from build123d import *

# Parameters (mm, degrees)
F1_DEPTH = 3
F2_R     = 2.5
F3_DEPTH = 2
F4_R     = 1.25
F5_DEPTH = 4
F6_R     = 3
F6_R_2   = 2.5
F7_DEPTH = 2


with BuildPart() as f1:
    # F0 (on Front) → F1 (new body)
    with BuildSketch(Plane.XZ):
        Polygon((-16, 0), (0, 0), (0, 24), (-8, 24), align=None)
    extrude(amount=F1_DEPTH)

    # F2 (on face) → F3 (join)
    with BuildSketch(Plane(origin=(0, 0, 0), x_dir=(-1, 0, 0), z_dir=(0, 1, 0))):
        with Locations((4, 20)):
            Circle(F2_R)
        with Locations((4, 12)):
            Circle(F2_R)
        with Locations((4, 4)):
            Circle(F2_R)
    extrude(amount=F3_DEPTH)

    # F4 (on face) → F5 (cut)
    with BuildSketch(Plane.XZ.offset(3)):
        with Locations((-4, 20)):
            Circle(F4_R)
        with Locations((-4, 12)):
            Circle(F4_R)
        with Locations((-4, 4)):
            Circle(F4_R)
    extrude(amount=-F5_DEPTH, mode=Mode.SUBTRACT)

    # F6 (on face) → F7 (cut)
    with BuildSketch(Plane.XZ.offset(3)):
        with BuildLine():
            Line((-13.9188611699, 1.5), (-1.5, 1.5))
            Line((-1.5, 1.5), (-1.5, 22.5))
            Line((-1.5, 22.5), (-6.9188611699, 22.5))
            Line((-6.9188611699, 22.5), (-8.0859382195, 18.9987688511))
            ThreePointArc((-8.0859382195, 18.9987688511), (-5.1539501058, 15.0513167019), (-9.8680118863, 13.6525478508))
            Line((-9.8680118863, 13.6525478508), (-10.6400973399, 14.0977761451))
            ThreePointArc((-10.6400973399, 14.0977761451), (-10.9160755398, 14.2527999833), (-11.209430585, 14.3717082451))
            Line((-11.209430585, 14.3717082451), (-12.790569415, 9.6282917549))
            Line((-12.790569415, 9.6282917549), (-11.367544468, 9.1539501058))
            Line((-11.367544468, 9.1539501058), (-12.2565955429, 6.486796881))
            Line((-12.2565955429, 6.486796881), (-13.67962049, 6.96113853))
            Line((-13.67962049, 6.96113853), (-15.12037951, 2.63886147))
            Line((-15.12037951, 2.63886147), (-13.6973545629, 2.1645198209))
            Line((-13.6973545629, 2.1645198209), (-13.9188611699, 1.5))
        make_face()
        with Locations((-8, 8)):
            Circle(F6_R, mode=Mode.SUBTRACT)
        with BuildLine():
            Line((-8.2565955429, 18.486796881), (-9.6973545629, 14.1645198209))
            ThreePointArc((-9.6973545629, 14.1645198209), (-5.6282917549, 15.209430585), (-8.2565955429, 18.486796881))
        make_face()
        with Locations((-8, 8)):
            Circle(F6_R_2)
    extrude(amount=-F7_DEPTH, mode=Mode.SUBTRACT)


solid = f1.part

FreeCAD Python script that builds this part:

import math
import FreeCAD as App
import Part
import Sketcher
from FreeCAD import Vector


def add_polygon(sketch, points):
    """Adds a closed chain of lines whose ends are joined by coincident constraints."""
    first, n = sketch.GeometryCount, len(points)
    for a, b in zip(points, points[1:] + points[:1]):
        sketch.addGeometry(Part.LineSegment(App.Vector(*a, 0), App.Vector(*b, 0)), False)
    for i in range(n):
        sketch.addConstraint(Sketcher.Constraint("Coincident", first + i, 2, first + (i + 1) % n, 1))

doc = App.newDocument("Part")
body = doc.addObject("PartDesign::Body", "Body")

# Sketch on XZ plane
sketch1 = body.newObject("Sketcher::SketchObject", "Sketch")
sketch1.AttachmentSupport = (doc.getObject("XZ_Plane"), [""])
sketch1.MapMode = "FlatFace"
add_polygon(sketch1, [(-16, 0), (0, 0), (0, 24), (-8, 24)])  # lines 0-3
sketch1.addConstraint(Sketcher.Constraint("Horizontal", 0))
sketch1.addConstraint(Sketcher.Constraint("Vertical", 1))
sketch1.addConstraint(Sketcher.Constraint("Horizontal", 2))
sketch1.addConstraint(Sketcher.Constraint("Coincident", 0, 2, -1, 1))
sketch1.addConstraint(Sketcher.Constraint("DistanceX", 0, 1, 0, 2, 16.0))
sketch1.addConstraint(Sketcher.Constraint("DistanceX", 2, 2, 2, 1, 8.0))
sketch1.addConstraint(Sketcher.Constraint("DistanceY", 1, 1, 1, 2, 24.0))
pad1 = body.newObject("PartDesign::Pad", "Pad")
pad1.Profile = sketch1
pad1.Length = 3

# Sketch on XZ plane
sketch2 = body.newObject("Sketcher::SketchObject", "Sketch001")
sketch2.AttachmentSupport = (doc.getObject("XZ_Plane"), [""])
sketch2.MapMode = "FlatFace"
sketch2.addGeometry(Part.Circle(Vector(-4, 20, 0), Vector(0, 0, 1), 2.5), False)
sketch2.addGeometry(Part.Circle(Vector(-4, 12, 0), Vector(0, 0, 1), 2.5), False)
sketch2.addGeometry(Part.Circle(Vector(-4, 4, 0), Vector(0, 0, 1), 2.5), False)
sketch2.addConstraint(Sketcher.Constraint("Equal", 0, 1))
sketch2.addConstraint(Sketcher.Constraint("Equal", 1, 2))
sketch2.addConstraint(Sketcher.Constraint("Vertical", 0, 3, 1, 3))
sketch2.addConstraint(Sketcher.Constraint("Vertical", 1, 3, 2, 3))
sketch2.addConstraint(Sketcher.Constraint("Diameter", 0, 5.0))
sketch2.addConstraint(Sketcher.Constraint("DistanceX", 0, 3, -1, 1, 4.0))
sketch2.addConstraint(Sketcher.Constraint("DistanceY", -1, 1, 0, 3, 20.0))
sketch2.addConstraint(Sketcher.Constraint("DistanceY", -1, 1, 1, 3, 12.0))
sketch2.addConstraint(Sketcher.Constraint("DistanceY", -1, 1, 2, 3, 4.0))
pad2 = body.newObject("PartDesign::Pad", "Pad001")
pad2.Profile = sketch2
pad2.Length = 2
pad2.Reversed = True

# Sketch on XZ plane
sketch3 = body.newObject("Sketcher::SketchObject", "Sketch002")
sketch3.AttachmentSupport = (doc.getObject("XZ_Plane"), [""])
sketch3.MapMode = "FlatFace"
sketch3.AttachmentOffset = App.Placement(Vector(0, 0, 3), App.Rotation())
sketch3.addGeometry(Part.Circle(Vector(-4, 20, 0), Vector(0, 0, 1), 1.2), False)
sketch3.addGeometry(Part.Circle(Vector(-4, 12, 0), Vector(0, 0, 1), 1.2), False)
sketch3.addGeometry(Part.Circle(Vector(-4, 4, 0), Vector(0, 0, 1), 1.2), False)
sketch3.addConstraint(Sketcher.Constraint("Equal", 0, 1))
sketch3.addConstraint(Sketcher.Constraint("Equal", 1, 2))
sketch3.addConstraint(Sketcher.Constraint("Vertical", 0, 3, 1, 3))
sketch3.addConstraint(Sketcher.Constraint("Vertical", 1, 3, 2, 3))
sketch3.addConstraint(Sketcher.Constraint("Diameter", 0, 2.5))
sketch3.addConstraint(Sketcher.Constraint("DistanceX", 0, 3, -1, 1, 4.0))
sketch3.addConstraint(Sketcher.Constraint("DistanceY", -1, 1, 0, 3, 20.0))
sketch3.addConstraint(Sketcher.Constraint("DistanceY", -1, 1, 1, 3, 12.0))
sketch3.addConstraint(Sketcher.Constraint("DistanceY", -1, 1, 2, 3, 4.0))
pocket1 = body.newObject("PartDesign::Pocket", "Pocket")
pocket1.Profile = sketch3
pocket1.Length = 4

# Sketch on XZ plane
sketch4 = body.newObject("Sketcher::SketchObject", "Sketch003")
sketch4.AttachmentSupport = (doc.getObject("XZ_Plane"), [""])
sketch4.MapMode = "FlatFace"
sketch4.AttachmentOffset = App.Placement(Vector(0, 0, 3), App.Rotation())
sketch4.addGeometry(Part.LineSegment(Vector(-13.9, 1.5, 0), Vector(-1.5, 1.5, 0)), False)
sketch4.addGeometry(Part.LineSegment(Vector(-1.5, 1.5, 0), Vector(-1.5, 22.5, 0)), False)
sketch4.addGeometry(Part.LineSegment(Vector(-1.5, 22.5, 0), Vector(-6.9, 22.5, 0)), False)
sketch4.addGeometry(Part.LineSegment(Vector(-6.9, 22.5, 0), Vector(-8.1, 19, 0)), False)
sketch4.addGeometry(Part.ArcOfCircle(Part.Circle(Vector(-8, 16, 0), Vector(0, 0, 1), 3), math.radians(-129), math.radians(92)), False)
sketch4.addGeometry(Part.LineSegment(Vector(-9.9, 13.7, 0), Vector(-10.6, 14.1, 0)), False)
sketch4.addGeometry(Part.ArcOfCircle(Part.Circle(Vector(-12, 12, 0), Vector(0, 0, 1), 2.5), math.radians(57.05), math.radians(71.57)), False)
sketch4.addGeometry(Part.LineSegment(Vector(-11.2, 14.4, 0), Vector(-12.8, 9.6, 0)), False)
sketch4.addGeometry(Part.LineSegment(Vector(-12.8, 9.6, 0), Vector(-11.4, 9.2, 0)), False)
sketch4.addGeometry(Part.LineSegment(Vector(-11.4, 9.2, 0), Vector(-12.3, 6.5, 0)), False)
sketch4.addGeometry(Part.LineSegment(Vector(-12.3, 6.5, 0), Vector(-13.7, 7, 0)), False)
sketch4.addGeometry(Part.LineSegment(Vector(-13.7, 7, 0), Vector(-15.1, 2.6, 0)), False)
sketch4.addGeometry(Part.LineSegment(Vector(-15.1, 2.6, 0), Vector(-13.7, 2.2, 0)), False)
sketch4.addGeometry(Part.LineSegment(Vector(-13.7, 2.2, 0), Vector(-13.9, 1.5, 0)), False)
sketch4.addGeometry(Part.Circle(Vector(-8, 8, 0), Vector(0, 0, 1), 3), False)
sketch4.addGeometry(Part.LineSegment(Vector(-8.3, 18.5, 0), Vector(-9.7, 14.2, 0)), False)
sketch4.addGeometry(Part.ArcOfCircle(Part.Circle(Vector(-8, 16, 0), Vector(0, 0, 1), 2.5), math.radians(-133), math.radians(96)), False)
sketch4.addGeometry(Part.Circle(Vector(-8, 8, 0), Vector(0, 0, 1), 2.5), False)
sketch4.addConstraint(Sketcher.Constraint("Coincident", 0, 2, 1, 1))
sketch4.addConstraint(Sketcher.Constraint("Coincident", 1, 2, 2, 1))
sketch4.addConstraint(Sketcher.Constraint("Coincident", 2, 2, 3, 1))
sketch4.addConstraint(Sketcher.Constraint("Coincident", 3, 2, 4, 2))
sketch4.addConstraint(Sketcher.Constraint("Coincident", 4, 1, 5, 1))
sketch4.addConstraint(Sketcher.Constraint("Coincident", 5, 2, 6, 1))
sketch4.addConstraint(Sketcher.Constraint("Coincident", 6, 2, 7, 1))
sketch4.addConstraint(Sketcher.Constraint("Coincident", 7, 2, 8, 1))
sketch4.addConstraint(Sketcher.Constraint("Coincident", 8, 2, 9, 1))
sketch4.addConstraint(Sketcher.Constraint("Coincident", 9, 2, 10, 1))
sketch4.addConstraint(Sketcher.Constraint("Coincident", 10, 2, 11, 1))
sketch4.addConstraint(Sketcher.Constraint("Coincident", 11, 2, 12, 1))
sketch4.addConstraint(Sketcher.Constraint("Coincident", 12, 2, 13, 1))
sketch4.addConstraint(Sketcher.Constraint("Coincident", 13, 2, 0, 1))
sketch4.addConstraint(Sketcher.Constraint("Coincident", 15, 1, 16, 2))
sketch4.addConstraint(Sketcher.Constraint("Coincident", 16, 1, 15, 2))
sketch4.addConstraint(Sketcher.Constraint("Horizontal", 0))
sketch4.addConstraint(Sketcher.Constraint("Vertical", 1))
sketch4.addConstraint(Sketcher.Constraint("Horizontal", 2))
sketch4.addConstraint(Sketcher.Constraint("Coincident", 16, 3, 4, 3))
sketch4.addConstraint(Sketcher.Constraint("Coincident", 17, 3, 14, 3))
sketch4.addConstraint(Sketcher.Constraint("Equal", 4, 14))
sketch4.addConstraint(Sketcher.Constraint("Equal", 6, 16))
sketch4.addConstraint(Sketcher.Constraint("Equal", 16, 17))
sketch4.addConstraint(Sketcher.Constraint("Parallel", 3, 7))
sketch4.addConstraint(Sketcher.Constraint("Perpendicular", 7, 8))
sketch4.addConstraint(Sketcher.Constraint("Perpendicular", 8, 9))
sketch4.addConstraint(Sketcher.Constraint("Perpendicular", 9, 10))
sketch4.addConstraint(Sketcher.Constraint("Perpendicular", 10, 11))
sketch4.addConstraint(Sketcher.Constraint("Perpendicular", 11, 12))
sketch4.addConstraint(Sketcher.Constraint("Perpendicular", 12, 13))
sketch4.addConstraint(Sketcher.Constraint("Parallel", 13, 15))
sketch4.addConstraint(Sketcher.Constraint("Vertical", 4, 3, 14, 3))
sketch4.addConstraint(Sketcher.Constraint("Equal", 8, 10))
sketch4.addConstraint(Sketcher.Constraint("Equal", 10, 12))
sketch4.addConstraint(Sketcher.Constraint("Equal", 11, 15))
sketch4.addConstraint(Sketcher.Constraint("Diameter", 14, 6.0))
sketch4.addConstraint(Sketcher.Constraint("Diameter", 17, 5.0))
sketch4.addConstraint(Sketcher.Constraint("DistanceY", 1, 1, 1, 2, 21.0))
sketch4.addConstraint(Sketcher.Constraint("Distance", 7, 5.0))
sketch4.addConstraint(Sketcher.Constraint("DistanceX", 4, 3, -1, 1, 8.0))
sketch4.addConstraint(Sketcher.Constraint("DistanceY", -1, 1, 4, 3, 16.0))
sketch4.addConstraint(Sketcher.Constraint("DistanceX", 6, 3, -1, 1, 12.0))
sketch4.addConstraint(Sketcher.Constraint("DistanceY", -1, 1, 6, 3, 12.0))
sketch4.addConstraint(Sketcher.Constraint("DistanceY", -1, 1, 14, 3, 8.0))
sketch4.addConstraint(Sketcher.Constraint("Distance", 8, 1.5))
sketch4.addConstraint(Sketcher.Constraint("DistanceX", 0, 2, -1, 1, 1.5))
sketch4.addConstraint(Sketcher.Constraint("DistanceY", -1, 1, 0, 2, 1.5))
sketch4.addConstraint(Sketcher.Constraint("DistanceX", 0, 1, 0, 2, 12.418861))
sketch4.addConstraint(Sketcher.Constraint("DistanceX", 2, 2, 2, 1, 5.418861))
sketch4.addConstraint(Sketcher.Constraint("DistanceX", 5, 2, 15, 1, 2.383502))
sketch4.addConstraint(Sketcher.Constraint("Distance", 3, 3.690622))
sketch4.addConstraint(Sketcher.Constraint("Distance", 5, 0.89126))
sketch4.addConstraint(Sketcher.Constraint("Distance", 11, 4.55608))
sketch4.addConstraint(Sketcher.Constraint("DistanceX", 10, 2, -1, 1, 13.67962))
pocket2 = body.newObject("PartDesign::Pocket", "Pocket001")
pocket2.Profile = sketch4
pocket2.Length = 2

doc.recompute()
